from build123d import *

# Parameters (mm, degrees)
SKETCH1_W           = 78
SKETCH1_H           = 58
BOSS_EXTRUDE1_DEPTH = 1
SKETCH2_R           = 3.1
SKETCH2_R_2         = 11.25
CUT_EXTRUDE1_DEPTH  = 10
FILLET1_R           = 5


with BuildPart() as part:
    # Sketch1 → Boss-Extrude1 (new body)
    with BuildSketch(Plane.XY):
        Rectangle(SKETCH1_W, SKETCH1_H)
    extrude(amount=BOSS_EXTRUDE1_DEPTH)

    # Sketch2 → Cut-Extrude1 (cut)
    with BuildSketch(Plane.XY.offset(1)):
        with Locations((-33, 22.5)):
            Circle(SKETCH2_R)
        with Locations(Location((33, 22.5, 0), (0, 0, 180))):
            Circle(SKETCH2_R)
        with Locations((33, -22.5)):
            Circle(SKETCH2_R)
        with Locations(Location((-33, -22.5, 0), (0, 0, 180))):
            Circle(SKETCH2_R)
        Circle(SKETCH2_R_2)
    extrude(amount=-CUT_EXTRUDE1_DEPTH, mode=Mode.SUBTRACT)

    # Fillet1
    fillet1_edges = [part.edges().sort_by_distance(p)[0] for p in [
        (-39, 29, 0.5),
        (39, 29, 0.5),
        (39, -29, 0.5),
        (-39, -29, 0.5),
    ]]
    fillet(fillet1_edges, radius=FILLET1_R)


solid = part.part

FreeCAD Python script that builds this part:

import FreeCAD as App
import Part
import Sketcher
from FreeCAD import Vector
Q = App.Units.Quantity


def edges_at(feature, points):
    """Names of the edges that pass closest to the given points."""
    edges = feature.Shape.Edges
    near = lambda p: min(range(len(edges)), key=lambda i: edges[i].distToShape(Part.Vertex(*p))[0])
    return sorted({f"Edge{near(p) + 1}" for p in points})


def add_polygon(sketch, points):
    """Adds a closed chain of lines whose ends are joined by coincident constraints."""
    first, n = sketch.GeometryCount, len(points)
    for a, b in zip(points, points[1:] + points[:1]):
        sketch.addGeometry(Part.LineSegment(App.Vector(*a, 0), App.Vector(*b, 0)), False)
    for i in range(n):
        sketch.addConstraint(Sketcher.Constraint("Coincident", first + i, 2, first + (i + 1) % n, 1))

doc = App.newDocument("Part")
params = doc.addObject("Spreadsheet::Sheet", "Params")
for row, (alias, value) in enumerate([
    ("sketch1_width", "78 mm"),
    ("sketch1_height", "58 mm"),
    ("pad1_length", "1 mm"),
    ("sketch2_diameter", "6.2 mm"),
    ("sketch2_diameter2", "22.5 mm"),
    ("pocket1_length", "10 mm"),
    ("fillet_radius", "5 mm"),
], start=1):
    params.set(f"A{row}", alias)
    params.set(f"B{row}", "=" + value)
    params.setAlias(f"B{row}", alias)

body = doc.addObject("PartDesign::Body", "Body")

sketch1 = body.newObject("Sketcher::SketchObject", "Sketch")
sketch1.AttachmentSupport = (doc.getObject("XY_Plane"), [""])
sketch1.MapMode = "FlatFace"
add_polygon(sketch1, [(-39, 29), (-39, -29), (39, -29), (39, 29)])
sketch1.addConstraint([
    Sketcher.Constraint("Vertical", 0),
    Sketcher.Constraint("Horizontal", 1),
    Sketcher.Constraint("Vertical", 2),
    Sketcher.Constraint("Horizontal", 3),
    Sketcher.Constraint("Symmetric", 0, 2, 2, 2, -1, 1),
    Sketcher.Constraint("DistanceX", 1, 1, 1, 2, Q("78 mm")),
    Sketcher.Constraint("DistanceY", 0, 2, 0, 1, Q("58 mm")),
])
sketch1.setExpression("Constraints[9]", "Params.sketch1_width")
sketch1.setExpression("Constraints[10]", "Params.sketch1_height")
pad1 = body.newObject("PartDesign::Pad", "Pad")
pad1.Profile = sketch1
pad1.setExpression("Length", "Params.pad1_length")

sketch2 = body.newObject("Sketcher::SketchObject", "Sketch001")
sketch2.AttachmentSupport = (doc.getObject("XY_Plane"), [""])
sketch2.MapMode = "FlatFace"
sketch2.AttachmentOffset = App.Placement(Vector(0, 0, 1), App.Rotation())
sketch2.addGeometry([
    Part.Circle(Vector(-33, 22.5, 0), Vector(0, 0, 1), 3.1),
    Part.Circle(Vector(33, 22.5, 0), Vector(0, 0, 1), 3.1),
    Part.Circle(Vector(33, -22.5, 0), Vector(0, 0, 1), 3.1),
    Part.Circle(Vector(-33, -22.5, 0), Vector(0, 0, 1), 3.1),
    Part.Circle(Vector(0, 0, 0), Vector(0, 0, 1), 11.2),
], False)
sketch2.addConstraint([
    Sketcher.Constraint("Coincident", 4, 3, -1, 1),
    Sketcher.Constraint("Equal", 0, 1),
    Sketcher.Constraint("Equal", 1, 2),
    Sketcher.Constraint("Equal", 2, 3),
    Sketcher.Constraint("Symmetric", 0, 3, 2, 3, -1, 1),
    Sketcher.Constraint("Symmetric", 1, 3, 3, 3, -1, 1),
    Sketcher.Constraint("Symmetric", 0, 3, 1, 3, -2),
    Sketcher.Constraint("Diameter", 0, Q("6.2 mm")),
    Sketcher.Constraint("Diameter", 4, Q("22.5 mm")),
    Sketcher.Constraint("DistanceX", 0, 3, -1, 1, Q("33 mm")),
    Sketcher.Constraint("DistanceY", 2, 3, 1, 3, Q("45 mm")),
])
sketch2.setExpression("Constraints[7]", "Params.sketch2_diameter")
sketch2.setExpression("Constraints[8]", "Params.sketch2_diameter2")
pocket1 = body.newObject("PartDesign::Pocket", "Pocket")
pocket1.Profile = sketch2
pocket1.setExpression("Length", "Params.pocket1_length")
doc.recompute()

fillet = body.newObject("PartDesign::Fillet", "Fillet")
fillet.Base = (pocket1, edges_at(pocket1, [
    (-39, 29, 0.5),
    (39, 29, 0.5),
    (39, -29, 0.5),
    (-39, -29, 0.5),
]))
fillet.setExpression("Radius", "Params.fillet_radius")

doc.recompute()
